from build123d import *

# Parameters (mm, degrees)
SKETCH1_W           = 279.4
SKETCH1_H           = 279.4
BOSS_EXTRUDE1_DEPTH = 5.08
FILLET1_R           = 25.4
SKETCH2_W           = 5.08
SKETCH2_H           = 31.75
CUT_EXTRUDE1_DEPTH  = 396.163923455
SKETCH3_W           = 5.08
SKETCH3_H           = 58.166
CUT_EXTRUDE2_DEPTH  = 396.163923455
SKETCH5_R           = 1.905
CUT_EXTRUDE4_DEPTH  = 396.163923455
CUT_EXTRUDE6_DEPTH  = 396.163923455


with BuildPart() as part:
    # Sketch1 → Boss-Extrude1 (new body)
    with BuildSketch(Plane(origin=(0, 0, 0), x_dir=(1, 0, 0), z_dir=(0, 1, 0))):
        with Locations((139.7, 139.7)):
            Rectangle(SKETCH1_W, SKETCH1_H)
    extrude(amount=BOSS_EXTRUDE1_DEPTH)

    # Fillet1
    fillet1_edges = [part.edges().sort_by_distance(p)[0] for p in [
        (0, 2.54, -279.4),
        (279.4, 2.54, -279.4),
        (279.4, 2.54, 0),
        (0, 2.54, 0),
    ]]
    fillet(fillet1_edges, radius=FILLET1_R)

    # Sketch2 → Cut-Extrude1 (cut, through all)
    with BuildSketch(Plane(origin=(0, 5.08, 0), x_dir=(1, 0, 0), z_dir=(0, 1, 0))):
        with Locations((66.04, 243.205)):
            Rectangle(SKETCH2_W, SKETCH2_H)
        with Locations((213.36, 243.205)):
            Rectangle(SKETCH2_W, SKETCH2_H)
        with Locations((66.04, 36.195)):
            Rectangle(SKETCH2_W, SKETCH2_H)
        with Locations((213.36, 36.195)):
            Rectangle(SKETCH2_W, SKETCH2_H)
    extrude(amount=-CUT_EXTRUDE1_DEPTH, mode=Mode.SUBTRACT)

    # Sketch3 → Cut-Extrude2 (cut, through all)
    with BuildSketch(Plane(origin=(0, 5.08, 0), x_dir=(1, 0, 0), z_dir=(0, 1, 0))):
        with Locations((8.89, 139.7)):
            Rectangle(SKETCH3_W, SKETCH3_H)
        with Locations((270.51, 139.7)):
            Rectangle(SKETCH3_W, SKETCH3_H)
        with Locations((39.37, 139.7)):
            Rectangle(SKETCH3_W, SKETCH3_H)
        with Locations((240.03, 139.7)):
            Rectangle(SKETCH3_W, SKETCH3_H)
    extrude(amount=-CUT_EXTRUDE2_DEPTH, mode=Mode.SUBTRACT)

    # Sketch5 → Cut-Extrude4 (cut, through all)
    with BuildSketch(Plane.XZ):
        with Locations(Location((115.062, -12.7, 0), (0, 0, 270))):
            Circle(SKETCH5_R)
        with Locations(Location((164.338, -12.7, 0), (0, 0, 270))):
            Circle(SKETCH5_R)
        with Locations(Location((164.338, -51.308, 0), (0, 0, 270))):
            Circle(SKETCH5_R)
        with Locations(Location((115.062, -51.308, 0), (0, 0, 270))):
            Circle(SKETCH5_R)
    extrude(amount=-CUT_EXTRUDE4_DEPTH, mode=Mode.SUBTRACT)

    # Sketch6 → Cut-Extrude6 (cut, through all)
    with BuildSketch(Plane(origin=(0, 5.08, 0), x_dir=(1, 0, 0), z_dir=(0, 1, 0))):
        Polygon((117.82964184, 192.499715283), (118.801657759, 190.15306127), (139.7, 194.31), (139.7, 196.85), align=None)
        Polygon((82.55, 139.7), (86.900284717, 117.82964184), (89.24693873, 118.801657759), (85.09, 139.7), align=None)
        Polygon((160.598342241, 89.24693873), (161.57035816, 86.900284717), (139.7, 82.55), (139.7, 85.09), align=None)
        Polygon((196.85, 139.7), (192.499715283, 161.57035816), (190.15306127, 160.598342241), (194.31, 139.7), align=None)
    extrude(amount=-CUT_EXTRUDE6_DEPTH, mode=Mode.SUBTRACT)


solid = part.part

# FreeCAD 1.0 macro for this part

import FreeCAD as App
import Part
import Sketcher
Q = App.Units.Quantity


def edges_at(feature, points):
    """Names of the edges that pass closest to the given points."""
    edges = feature.Shape.Edges
    near = lambda p: min(range(len(edges)), key=lambda i: edges[i].distToShape(Part.Vertex(*p))[0])
    return sorted({f"Edge{near(p) + 1}" for p in points})

doc = App.newDocument("Part")
body = doc.addObject("PartDesign::Body", "Body")

sketch1 = body.newObject("Sketcher::SketchObject", "Sketch")
sketch1.AttachmentSupport = (doc.getObject("XZ_Plane"), [""])
sketch1.MapMode = "FlatFace"
sketch1.addGeometry([
    Part.LineSegment(App.Vector(0, -279, 0), App.Vector(0, 0, 0)),
    Part.LineSegment(App.Vector(0, 0, 0), App.Vector(279, 0, 0)),
    Part.LineSegment(App.Vector(279, 0, 0), App.Vector(279, -279, 0)),
    Part.LineSegment(App.Vector(279, -279, 0), App.Vector(0, -279, 0)),
], False)
sketch1.addConstraint([
    Sketcher.Constraint("Coincident", 0, 2, 1, 1),
    Sketcher.Constraint("Coincident", 1, 2, 2, 1),
    Sketcher.Constraint("Coincident", 2, 2, 3, 1),
    Sketcher.Constraint("Coincident", 3, 2, 0, 1),
    Sketcher.Constraint("Vertical", 0),
    Sketcher.Constraint("Horizontal", 1),
    Sketcher.Constraint("Vertical", 2),
    Sketcher.Constraint("Horizontal", 3),
    Sketcher.Constraint("Coincident", 0, 2, -1, 1),
    Sketcher.Constraint("Equal", 3, 0),
    Sketcher.Constraint("DistanceX", 1, 1, 1, 2, Q("11 in")),
])
pad1 = body.newObject("PartDesign::Pad", "Pad")
pad1.Profile = sketch1
pad1.Length = Q("0.2 in")
pad1.Reversed = True
doc.recompute()

fillet = body.newObject("PartDesign::Fillet", "Fillet")
fillet.Base = (pad1, edges_at(pad1, [
    (0, 2.54, -279.4),
    (279.4, 2.54, -279.4),
    (279.4, 2.54, 0),
    (0, 2.54, 0),
]))
fillet.Radius = Q("1 in")

sketch2 = body.newObject("Sketcher::SketchObject", "Sketch001")
sketch2.AttachmentSupport = (doc.getObject("XZ_Plane"), [""])
sketch2.MapMode = "FlatFace"
sketch2.AttachmentOffset = App.Placement(App.Vector(0, 0, -0.2 * 25.4), App.Rotation())
sketch2.addGeometry([
    Part.LineSegment(App.Vector(64, -259, 0), App.Vector(64, -227, 0)),
    Part.LineSegment(App.Vector(64, -227, 0), App.Vector(69, -227, 0)),
    Part.LineSegment(App.Vector(69, -227, 0), App.Vector(69, -259, 0)),
    Part.LineSegment(App.Vector(69, -259, 0), App.Vector(64, -259, 0)),
    Part.LineSegment(App.Vector(211, -259, 0), App.Vector(211, -227, 0)),
    Part.LineSegment(App.Vector(211, -227, 0), App.Vector(216, -227, 0)),
    Part.LineSegment(App.Vector(216, -227, 0), App.Vector(216, -259, 0)),
    Part.LineSegment(App.Vector(216, -259, 0), App.Vector(211, -259, 0)),
    Part.LineSegment(App.Vector(64, -52, 0), App.Vector(64, -20, 0)),
    Part.LineSegment(App.Vector(64, -20, 0), App.Vector(69, -20, 0)),
    Part.LineSegment(App.Vector(69, -20, 0), App.Vector(69, -52, 0)),
    Part.LineSegment(App.Vector(69, -52, 0), App.Vector(64, -52, 0)),
    Part.LineSegment(App.Vector(211, -52, 0), App.Vector(211, -20, 0)),
    Part.LineSegment(App.Vector(211, -20, 0), App.Vector(216, -20, 0)),
    Part.LineSegment(App.Vector(216, -20, 0), App.Vector(216, -52, 0)),
    Part.LineSegment(App.Vector(216, -52, 0), App.Vector(211, -52, 0)),
], False)
sketch2.addConstraint([
    Sketcher.Constraint("Coincident", 0, 2, 1, 1),
    Sketcher.Constraint("Coincident", 1, 2, 2, 1),
    Sketcher.Constraint("Coincident", 2, 2, 3, 1),
    Sketcher.Constraint("Coincident", 3, 2, 0, 1),
    Sketcher.Constraint("Coincident", 4, 2, 5, 1),
    Sketcher.Constraint("Coincident", 5, 2, 6, 1),
    Sketcher.Constraint("Coincident", 6, 2, 7, 1),
    Sketcher.Constraint("Coincident", 7, 2, 4, 1),
    Sketcher.Constraint("Coincident", 8, 2, 9, 1),
    Sketcher.Constraint("Coincident", 9, 2, 10, 1),
    Sketcher.Constraint("Coincident", 10, 2, 11, 1),
    Sketcher.Constraint("Coincident", 11, 2, 8, 1),
    Sketcher.Constraint("Coincident", 12, 2, 13, 1),
    Sketcher.Constraint("Coincident", 13, 2, 14, 1),
    Sketcher.Constraint("Coincident", 14, 2, 15, 1),
    Sketcher.Constraint("Coincident", 15, 2, 12, 1),
    Sketcher.Constraint("Vertical", 0),
    Sketcher.Constraint("Horizontal", 1),
    Sketcher.Constraint("Vertical", 2),
    Sketcher.Constraint("Horizontal", 3),
    Sketcher.Constraint("Vertical", 4),
    Sketcher.Constraint("Horizontal", 5),
    Sketcher.Constraint("Vertical", 6),
    Sketcher.Constraint("Horizontal", 7),
    Sketcher.Constraint("Vertical", 8),
    Sketcher.Constraint("Horizontal", 9),
    Sketcher.Constraint("Vertical", 10),
    Sketcher.Constraint("Horizontal", 11),
    Sketcher.Constraint("Vertical", 12),
    Sketcher.Constraint("Horizontal", 13),
    Sketcher.Constraint("Vertical", 14),
    Sketcher.Constraint("Horizontal", 15),
    Sketcher.Constraint("Horizontal", 1, 2, 4, 2),
    Sketcher.Constraint("Horizontal", 3, 2, 6, 2),
    Sketcher.Constraint("Horizontal", 9, 2, 12, 2),
    Sketcher.Constraint("Horizontal", 11, 2, 14, 2),
    Sketcher.Constraint("Vertical", 3, 2, 8, 2),
    Sketcher.Constraint("Vertical", 2, 2, 9, 2),
    Sketcher.Constraint("Vertical", 7, 2, 12, 2),
    Sketcher.Constraint("Vertical", 6, 2, 13, 2),
    Sketcher.Constraint("Equal", 3, 5),
    Sketcher.Constraint("Equal", 6, 8),
    Sketcher.Constraint("DistanceX", 1, 1, 1, 2, Q("0.2 in")),
    Sketcher.Constraint("DistanceX", 0, 2, 5, 2, Q("6 in")),
    Sketcher.Constraint("DistanceY", 0, 1, 0, 2, Q("1.25 in")),
    Sketcher.Constraint("DistanceX", -1, 1, 0, 2, Q("2.5 in")),
    Sketcher.Constraint("DistanceY", 2, 2, -1, 1, Q("10.2 in")),
    Sketcher.Constraint("DistanceY", 8, 2, -1, 1, Q("0.8 in")),
])
pocket1 = body.newObject("PartDesign::Pocket", "Pocket")
pocket1.Profile = sketch2
pocket1.Type = "ThroughAll"
pocket1.Reversed = True

sketch3 = body.newObject("Sketcher::SketchObject", "Sketch002")
sketch3.AttachmentSupport = (doc.getObject("XZ_Plane"), [""])
sketch3.MapMode = "FlatFace"
sketch3.AttachmentOffset = App.Placement(App.Vector(0, 0, -0.2 * 25.4), App.Rotation())
sketch3.addGeometry([
    Part.LineSegment(App.Vector(6, -169, 0), App.Vector(6, -111, 0)),
    Part.LineSegment(App.Vector(6, -111, 0), App.Vector(11, -111, 0)),
    Part.LineSegment(App.Vector(11, -111, 0), App.Vector(11, -169, 0)),
    Part.LineSegment(App.Vector(11, -169, 0), App.Vector(6, -169, 0)),
    Part.LineSegment(App.Vector(268, -169, 0), App.Vector(268, -111, 0)),
    Part.LineSegment(App.Vector(268, -111, 0), App.Vector(273, -111, 0)),
    Part.LineSegment(App.Vector(273, -111, 0), App.Vector(273, -169, 0)),
    Part.LineSegment(App.Vector(273, -169, 0), App.Vector(268, -169, 0)),
    Part.LineSegment(App.Vector(37, -169, 0), App.Vector(37, -111, 0)),
    Part.LineSegment(App.Vector(37, -111, 0), App.Vector(42, -111, 0)),
    Part.LineSegment(App.Vector(42, -111, 0), App.Vector(42, -169, 0)),
    Part.LineSegment(App.Vector(42, -169, 0), App.Vector(37, -169, 0)),
    Part.LineSegment(App.Vector(237, -169, 0), App.Vector(237, -111, 0)),
    Part.LineSegment(App.Vector(237, -111, 0), App.Vector(243, -111, 0)),
    Part.LineSegment(App.Vector(243, -111, 0), App.Vector(243, -169, 0)),
    Part.LineSegment(App.Vector(243, -169, 0), App.Vector(237, -169, 0)),
], False)
sketch3.addConstraint([
    Sketcher.Constraint("Coincident", 0, 2, 1, 1),
    Sketcher.Constraint("Coincident", 1, 2, 2, 1),
    Sketcher.Constraint("Coincident", 2, 2, 3, 1),
    Sketcher.Constraint("Coincident", 3, 2, 0, 1),
    Sketcher.Constraint("Coincident", 4, 2, 5, 1),
    Sketcher.Constraint("Coincident", 5, 2, 6, 1),
    Sketcher.Constraint("Coincident", 6, 2, 7, 1),
    Sketcher.Constraint("Coincident", 7, 2, 4, 1),
    Sketcher.Constraint("Coincident", 8, 2, 9, 1),
    Sketcher.Constraint("Coincident", 9, 2, 10, 1),
    Sketcher.Constraint("Coincident", 10, 2, 11, 1),
    Sketcher.Constraint("Coincident", 11, 2, 8, 1),
    Sketcher.Constraint("Coincident", 12, 2, 13, 1),
    Sketcher.Constraint("Coincident", 13, 2, 14, 1),
    Sketcher.Constraint("Coincident", 14, 2, 15, 1),
    Sketcher.Constraint("Coincident", 15, 2, 12, 1),
    Sketcher.Constraint("Vertical", 0),
    Sketcher.Constraint("Horizontal", 1),
    Sketcher.Constraint("Vertical", 2),
    Sketcher.Constraint("Horizontal", 3),
    Sketcher.Constraint("Vertical", 4),
    Sketcher.Constraint("Horizontal", 5),
    Sketcher.Constraint("Vertical", 6),
    Sketcher.Constraint("Horizontal", 7),
    Sketcher.Constraint("Vertical", 8),
    Sketcher.Constraint("Horizontal", 9),
    Sketcher.Constraint("Vertical", 10),
    Sketcher.Constraint("Horizontal", 11),
    Sketcher.Constraint("Vertical", 12),
    Sketcher.Constraint("Horizontal", 13),
    Sketcher.Constraint("Vertical", 14),
    Sketcher.Constraint("Horizontal", 15),
    Sketcher.Constraint("Horizontal", 1, 2, 4, 2),
    Sketcher.Constraint("Horizontal", 3, 2, 6, 2),
    Sketcher.Constraint("Horizontal", 5, 2, 8, 2),
    Sketcher.Constraint("Horizontal", 7, 2, 10, 2),
    Sketcher.Constraint("Horizontal", 9, 2, 12, 2),
    Sketcher.Constraint("Horizontal", 11, 2, 14, 2),
    Sketcher.Constraint("Equal", 3, 5),
    Sketcher.Constraint("Equal", 7, 9),
    Sketcher.Constraint("Equal", 11, 13),
    Sketcher.Constraint("DistanceX", 1, 1, 1, 2, Q("0.2 in")),
    Sketcher.Constraint("DistanceX", 1, 2, 8, 2, Q("1 in")),
    Sketcher.Constraint("DistanceX", 13, 2, 4, 2, Q("1 in")),
    Sketcher.Constraint("DistanceY", 0, 1, 0, 2, Q("2.29 in")),
    Sketcher.Constraint("DistanceX", 1, 2, 4, 2, Q("10.1 in")),
    Sketcher.Constraint("DistanceX", -1, 1, 0, 2, Q("0.25 in")),
    Sketcher.Constraint("DistanceY", 0, 2, -1, 1, Q("4.355 in")),
])
pocket2 = body.newObject("PartDesign::Pocket", "Pocket001")
pocket2.Profile = sketch3
pocket2.Type = "ThroughAll"
pocket2.Reversed = True

sketch4 = body.newObject("Sketcher::SketchObject", "Sketch003")
sketch4.AttachmentSupport = (doc.getObject("XZ_Plane"), [""])
sketch4.MapMode = "FlatFace"
sketch4.addGeometry([
    Part.Circle(App.Vector(115.1, -12.7, 0), App.Vector(0, 0, 1), 1.9),
    Part.Circle(App.Vector(164.3, -12.7, 0), App.Vector(0, 0, 1), 1.9),
    Part.Circle(App.Vector(164.3, -51.3, 0), App.Vector(0, 0, 1), 1.9),
    Part.Circle(App.Vector(115.1, -51.3, 0), App.Vector(0, 0, 1), 1.9),
], False)
sketch4.addConstraint([
    Sketcher.Constraint("Equal", 0, 1),
    Sketcher.Constraint("Equal", 1, 2),
    Sketcher.Constraint("Equal", 2, 3),
    Sketcher.Constraint("Horizontal", 0, 3, 1, 3),
    Sketcher.Constraint("Horizontal", 2, 3, 3, 3),
    Sketcher.Constraint("Vertical", 1, 3, 2, 3),
    Sketcher.Constraint("Vertical", 0, 3, 3, 3),
    Sketcher.Constraint("Diameter", 0, Q("0.15 in")),
    Sketcher.Constraint("DistanceY", 0, 3, -1, 1, Q("0.5 in")),
    Sketcher.Constraint("DistanceX", -1, 1, 0, 3, Q("4.53 in")),
    Sketcher.Constraint("DistanceX", -1, 1, 1, 3, Q("6.47 in")),
    Sketcher.Constraint("DistanceY", 2, 3, -1, 1, Q("2.02 in")),
])
pocket3 = body.newObject("PartDesign::Pocket", "Pocket002")
pocket3.Profile = sketch4
pocket3.Type = "ThroughAll"

sketch5 = body.newObject("Sketcher::SketchObject", "Sketch004")
sketch5.AttachmentSupport = (doc.getObject("XZ_Plane"), [""])
sketch5.MapMode = "FlatFace"
sketch5.AttachmentOffset = App.Placement(App.Vector(0, 0, -0.2 * 25.4), App.Rotation())
sketch5.addGeometry([
    Part.LineSegment(App.Vector(117.8, -192.5, 0), App.Vector(118.8, -190.2, 0)),
    Part.LineSegment(App.Vector(118.8, -190.2, 0), App.Vector(139.7, -194.3, 0)),
    Part.LineSegment(App.Vector(139.7, -194.3, 0), App.Vector(139.7, -196.8, 0)),
    Part.LineSegment(App.Vector(139.7, -196.8, 0), App.Vector(117.8, -192.5, 0)),
    Part.LineSegment(App.Vector(82.5, -139.7, 0), App.Vector(86.9, -117.8, 0)),
    Part.LineSegment(App.Vector(86.9, -117.8, 0), App.Vector(89.2, -118.8, 0)),
    Part.LineSegment(App.Vector(89.2, -118.8, 0), App.Vector(85.1, -139.7, 0)),
    Part.LineSegment(App.Vector(85.1, -139.7, 0), App.Vector(82.5, -139.7, 0)),
    Part.LineSegment(App.Vector(161.6, -86.9, 0), App.Vector(160.6, -89.2, 0)),
    Part.LineSegment(App.Vector(160.6, -89.2, 0), App.Vector(139.7, -85.1, 0)),
    Part.LineSegment(App.Vector(139.7, -85.1, 0), App.Vector(139.7, -82.5, 0)),
    Part.LineSegment(App.Vector(139.7, -82.5, 0), App.Vector(161.6, -86.9, 0)),
    Part.LineSegment(App.Vector(196.8, -139.7, 0), App.Vector(192.5, -161.6, 0)),
    Part.LineSegment(App.Vector(192.5, -161.6, 0), App.Vector(190.2, -160.6, 0)),
    Part.LineSegment(App.Vector(190.2, -160.6, 0), App.Vector(194.3, -139.7, 0)),
    Part.LineSegment(App.Vector(194.3, -139.7, 0), App.Vector(196.8, -139.7, 0)),
], False)
sketch5.addConstraint([
    Sketcher.Constraint("Coincident", 0, 2, 1, 1),
    Sketcher.Constraint("Coincident", 1, 2, 2, 1),
    Sketcher.Constraint("Coincident", 2, 2, 3, 1),
    Sketcher.Constraint("Coincident", 3, 2, 0, 1),
    Sketcher.Constraint("Coincident", 4, 2, 5, 1),
    Sketcher.Constraint("Coincident", 5, 2, 6, 1),
    Sketcher.Constraint("Coincident", 6, 2, 7, 1),
    Sketcher.Constraint("Coincident", 7, 2, 4, 1),
    Sketcher.Constraint("Coincident", 8, 2, 9, 1),
    Sketcher.Constraint("Coincident", 9, 2, 10, 1),
    Sketcher.Constraint("Coincident", 10, 2, 11, 1),
    Sketcher.Constraint("Coincident", 11, 2, 8, 1),
    Sketcher.Constraint("Coincident", 12, 2, 13, 1),
    Sketcher.Constraint("Coincident", 13, 2, 14, 1),
    Sketcher.Constraint("Coincident", 14, 2, 15, 1),
    Sketcher.Constraint("Coincident", 15, 2, 12, 1),
    Sketcher.Constraint("Vertical", 2),
    Sketcher.Constraint("Horizontal", 7),
    Sketcher.Constraint("Vertical", 10),
    Sketcher.Constraint("Horizontal", 15),
    Sketcher.Constraint("Parallel", 1, 3),
    Sketcher.Constraint("Perpendicular", 3, 4),
    Sketcher.Constraint("Perpendicular", 0, 5),
    Sketcher.Constraint("Parallel", 4, 6),
    Sketcher.Constraint("Perpendicular", 5, 8),
    Sketcher.Constraint("Perpendicular", 6, 9),
    Sketcher.Constraint("Parallel", 9, 11),
    Sketcher.Constraint("Perpendicular", 11, 12),
    Sketcher.Constraint("Perpendicular", 8, 13),
    Sketcher.Constraint("Parallel", 12, 14),
    Sketcher.Constraint("Horizontal", 7, 2, 14, 2),
    Sketcher.Constraint("Vertical", 2, 2, 9, 2),
    Sketcher.Constraint("Equal", 7, 15),
    Sketcher.Constraint("Equal", 15, 2),
    Sketcher.Constraint("Equal", 2, 10),
    Sketcher.Constraint("Equal", 3, 4),
    Sketcher.Constraint("Equal", 6, 9),
    Sketcher.Constraint("Equal", 11, 12),
    Sketcher.Constraint("DistanceX", 7, 2, 7, 1, Q("0.1 in")),
    Sketcher.Constraint("Distance", 0, Q("0.1 in")),
    Sketcher.Constraint("DistanceX", -1, 1, 1, 2, Q("5.5 in")),
    Sketcher.Constraint("DistanceY", 6, 2, -1, 1, Q("5.5 in")),
    Sketcher.Constraint("Angle", 0, Q("67.5 deg")),
    Sketcher.Constraint("DistanceY", 1, 2, -1, 1, Q("7.65 in")),
    Sketcher.Constraint("DistanceX", -1, 1, 6, 2, Q("3.35 in")),
    Sketcher.Constraint("DistanceY", 9, 2, -1, 1, Q("3.35 in")),
    Sketcher.Constraint("DistanceX", -1, 1, 14, 2, Q("7.65 in")),
    Sketcher.Constraint("DistanceY", 0, 2, -1, 1, Q("190.153061 mm")),
])
pocket4 = body.newObject("PartDesign::Pocket", "Pocket003")
pocket4.Profile = sketch5
pocket4.Type = "ThroughAll"
pocket4.Reversed = True

doc.recompute()
